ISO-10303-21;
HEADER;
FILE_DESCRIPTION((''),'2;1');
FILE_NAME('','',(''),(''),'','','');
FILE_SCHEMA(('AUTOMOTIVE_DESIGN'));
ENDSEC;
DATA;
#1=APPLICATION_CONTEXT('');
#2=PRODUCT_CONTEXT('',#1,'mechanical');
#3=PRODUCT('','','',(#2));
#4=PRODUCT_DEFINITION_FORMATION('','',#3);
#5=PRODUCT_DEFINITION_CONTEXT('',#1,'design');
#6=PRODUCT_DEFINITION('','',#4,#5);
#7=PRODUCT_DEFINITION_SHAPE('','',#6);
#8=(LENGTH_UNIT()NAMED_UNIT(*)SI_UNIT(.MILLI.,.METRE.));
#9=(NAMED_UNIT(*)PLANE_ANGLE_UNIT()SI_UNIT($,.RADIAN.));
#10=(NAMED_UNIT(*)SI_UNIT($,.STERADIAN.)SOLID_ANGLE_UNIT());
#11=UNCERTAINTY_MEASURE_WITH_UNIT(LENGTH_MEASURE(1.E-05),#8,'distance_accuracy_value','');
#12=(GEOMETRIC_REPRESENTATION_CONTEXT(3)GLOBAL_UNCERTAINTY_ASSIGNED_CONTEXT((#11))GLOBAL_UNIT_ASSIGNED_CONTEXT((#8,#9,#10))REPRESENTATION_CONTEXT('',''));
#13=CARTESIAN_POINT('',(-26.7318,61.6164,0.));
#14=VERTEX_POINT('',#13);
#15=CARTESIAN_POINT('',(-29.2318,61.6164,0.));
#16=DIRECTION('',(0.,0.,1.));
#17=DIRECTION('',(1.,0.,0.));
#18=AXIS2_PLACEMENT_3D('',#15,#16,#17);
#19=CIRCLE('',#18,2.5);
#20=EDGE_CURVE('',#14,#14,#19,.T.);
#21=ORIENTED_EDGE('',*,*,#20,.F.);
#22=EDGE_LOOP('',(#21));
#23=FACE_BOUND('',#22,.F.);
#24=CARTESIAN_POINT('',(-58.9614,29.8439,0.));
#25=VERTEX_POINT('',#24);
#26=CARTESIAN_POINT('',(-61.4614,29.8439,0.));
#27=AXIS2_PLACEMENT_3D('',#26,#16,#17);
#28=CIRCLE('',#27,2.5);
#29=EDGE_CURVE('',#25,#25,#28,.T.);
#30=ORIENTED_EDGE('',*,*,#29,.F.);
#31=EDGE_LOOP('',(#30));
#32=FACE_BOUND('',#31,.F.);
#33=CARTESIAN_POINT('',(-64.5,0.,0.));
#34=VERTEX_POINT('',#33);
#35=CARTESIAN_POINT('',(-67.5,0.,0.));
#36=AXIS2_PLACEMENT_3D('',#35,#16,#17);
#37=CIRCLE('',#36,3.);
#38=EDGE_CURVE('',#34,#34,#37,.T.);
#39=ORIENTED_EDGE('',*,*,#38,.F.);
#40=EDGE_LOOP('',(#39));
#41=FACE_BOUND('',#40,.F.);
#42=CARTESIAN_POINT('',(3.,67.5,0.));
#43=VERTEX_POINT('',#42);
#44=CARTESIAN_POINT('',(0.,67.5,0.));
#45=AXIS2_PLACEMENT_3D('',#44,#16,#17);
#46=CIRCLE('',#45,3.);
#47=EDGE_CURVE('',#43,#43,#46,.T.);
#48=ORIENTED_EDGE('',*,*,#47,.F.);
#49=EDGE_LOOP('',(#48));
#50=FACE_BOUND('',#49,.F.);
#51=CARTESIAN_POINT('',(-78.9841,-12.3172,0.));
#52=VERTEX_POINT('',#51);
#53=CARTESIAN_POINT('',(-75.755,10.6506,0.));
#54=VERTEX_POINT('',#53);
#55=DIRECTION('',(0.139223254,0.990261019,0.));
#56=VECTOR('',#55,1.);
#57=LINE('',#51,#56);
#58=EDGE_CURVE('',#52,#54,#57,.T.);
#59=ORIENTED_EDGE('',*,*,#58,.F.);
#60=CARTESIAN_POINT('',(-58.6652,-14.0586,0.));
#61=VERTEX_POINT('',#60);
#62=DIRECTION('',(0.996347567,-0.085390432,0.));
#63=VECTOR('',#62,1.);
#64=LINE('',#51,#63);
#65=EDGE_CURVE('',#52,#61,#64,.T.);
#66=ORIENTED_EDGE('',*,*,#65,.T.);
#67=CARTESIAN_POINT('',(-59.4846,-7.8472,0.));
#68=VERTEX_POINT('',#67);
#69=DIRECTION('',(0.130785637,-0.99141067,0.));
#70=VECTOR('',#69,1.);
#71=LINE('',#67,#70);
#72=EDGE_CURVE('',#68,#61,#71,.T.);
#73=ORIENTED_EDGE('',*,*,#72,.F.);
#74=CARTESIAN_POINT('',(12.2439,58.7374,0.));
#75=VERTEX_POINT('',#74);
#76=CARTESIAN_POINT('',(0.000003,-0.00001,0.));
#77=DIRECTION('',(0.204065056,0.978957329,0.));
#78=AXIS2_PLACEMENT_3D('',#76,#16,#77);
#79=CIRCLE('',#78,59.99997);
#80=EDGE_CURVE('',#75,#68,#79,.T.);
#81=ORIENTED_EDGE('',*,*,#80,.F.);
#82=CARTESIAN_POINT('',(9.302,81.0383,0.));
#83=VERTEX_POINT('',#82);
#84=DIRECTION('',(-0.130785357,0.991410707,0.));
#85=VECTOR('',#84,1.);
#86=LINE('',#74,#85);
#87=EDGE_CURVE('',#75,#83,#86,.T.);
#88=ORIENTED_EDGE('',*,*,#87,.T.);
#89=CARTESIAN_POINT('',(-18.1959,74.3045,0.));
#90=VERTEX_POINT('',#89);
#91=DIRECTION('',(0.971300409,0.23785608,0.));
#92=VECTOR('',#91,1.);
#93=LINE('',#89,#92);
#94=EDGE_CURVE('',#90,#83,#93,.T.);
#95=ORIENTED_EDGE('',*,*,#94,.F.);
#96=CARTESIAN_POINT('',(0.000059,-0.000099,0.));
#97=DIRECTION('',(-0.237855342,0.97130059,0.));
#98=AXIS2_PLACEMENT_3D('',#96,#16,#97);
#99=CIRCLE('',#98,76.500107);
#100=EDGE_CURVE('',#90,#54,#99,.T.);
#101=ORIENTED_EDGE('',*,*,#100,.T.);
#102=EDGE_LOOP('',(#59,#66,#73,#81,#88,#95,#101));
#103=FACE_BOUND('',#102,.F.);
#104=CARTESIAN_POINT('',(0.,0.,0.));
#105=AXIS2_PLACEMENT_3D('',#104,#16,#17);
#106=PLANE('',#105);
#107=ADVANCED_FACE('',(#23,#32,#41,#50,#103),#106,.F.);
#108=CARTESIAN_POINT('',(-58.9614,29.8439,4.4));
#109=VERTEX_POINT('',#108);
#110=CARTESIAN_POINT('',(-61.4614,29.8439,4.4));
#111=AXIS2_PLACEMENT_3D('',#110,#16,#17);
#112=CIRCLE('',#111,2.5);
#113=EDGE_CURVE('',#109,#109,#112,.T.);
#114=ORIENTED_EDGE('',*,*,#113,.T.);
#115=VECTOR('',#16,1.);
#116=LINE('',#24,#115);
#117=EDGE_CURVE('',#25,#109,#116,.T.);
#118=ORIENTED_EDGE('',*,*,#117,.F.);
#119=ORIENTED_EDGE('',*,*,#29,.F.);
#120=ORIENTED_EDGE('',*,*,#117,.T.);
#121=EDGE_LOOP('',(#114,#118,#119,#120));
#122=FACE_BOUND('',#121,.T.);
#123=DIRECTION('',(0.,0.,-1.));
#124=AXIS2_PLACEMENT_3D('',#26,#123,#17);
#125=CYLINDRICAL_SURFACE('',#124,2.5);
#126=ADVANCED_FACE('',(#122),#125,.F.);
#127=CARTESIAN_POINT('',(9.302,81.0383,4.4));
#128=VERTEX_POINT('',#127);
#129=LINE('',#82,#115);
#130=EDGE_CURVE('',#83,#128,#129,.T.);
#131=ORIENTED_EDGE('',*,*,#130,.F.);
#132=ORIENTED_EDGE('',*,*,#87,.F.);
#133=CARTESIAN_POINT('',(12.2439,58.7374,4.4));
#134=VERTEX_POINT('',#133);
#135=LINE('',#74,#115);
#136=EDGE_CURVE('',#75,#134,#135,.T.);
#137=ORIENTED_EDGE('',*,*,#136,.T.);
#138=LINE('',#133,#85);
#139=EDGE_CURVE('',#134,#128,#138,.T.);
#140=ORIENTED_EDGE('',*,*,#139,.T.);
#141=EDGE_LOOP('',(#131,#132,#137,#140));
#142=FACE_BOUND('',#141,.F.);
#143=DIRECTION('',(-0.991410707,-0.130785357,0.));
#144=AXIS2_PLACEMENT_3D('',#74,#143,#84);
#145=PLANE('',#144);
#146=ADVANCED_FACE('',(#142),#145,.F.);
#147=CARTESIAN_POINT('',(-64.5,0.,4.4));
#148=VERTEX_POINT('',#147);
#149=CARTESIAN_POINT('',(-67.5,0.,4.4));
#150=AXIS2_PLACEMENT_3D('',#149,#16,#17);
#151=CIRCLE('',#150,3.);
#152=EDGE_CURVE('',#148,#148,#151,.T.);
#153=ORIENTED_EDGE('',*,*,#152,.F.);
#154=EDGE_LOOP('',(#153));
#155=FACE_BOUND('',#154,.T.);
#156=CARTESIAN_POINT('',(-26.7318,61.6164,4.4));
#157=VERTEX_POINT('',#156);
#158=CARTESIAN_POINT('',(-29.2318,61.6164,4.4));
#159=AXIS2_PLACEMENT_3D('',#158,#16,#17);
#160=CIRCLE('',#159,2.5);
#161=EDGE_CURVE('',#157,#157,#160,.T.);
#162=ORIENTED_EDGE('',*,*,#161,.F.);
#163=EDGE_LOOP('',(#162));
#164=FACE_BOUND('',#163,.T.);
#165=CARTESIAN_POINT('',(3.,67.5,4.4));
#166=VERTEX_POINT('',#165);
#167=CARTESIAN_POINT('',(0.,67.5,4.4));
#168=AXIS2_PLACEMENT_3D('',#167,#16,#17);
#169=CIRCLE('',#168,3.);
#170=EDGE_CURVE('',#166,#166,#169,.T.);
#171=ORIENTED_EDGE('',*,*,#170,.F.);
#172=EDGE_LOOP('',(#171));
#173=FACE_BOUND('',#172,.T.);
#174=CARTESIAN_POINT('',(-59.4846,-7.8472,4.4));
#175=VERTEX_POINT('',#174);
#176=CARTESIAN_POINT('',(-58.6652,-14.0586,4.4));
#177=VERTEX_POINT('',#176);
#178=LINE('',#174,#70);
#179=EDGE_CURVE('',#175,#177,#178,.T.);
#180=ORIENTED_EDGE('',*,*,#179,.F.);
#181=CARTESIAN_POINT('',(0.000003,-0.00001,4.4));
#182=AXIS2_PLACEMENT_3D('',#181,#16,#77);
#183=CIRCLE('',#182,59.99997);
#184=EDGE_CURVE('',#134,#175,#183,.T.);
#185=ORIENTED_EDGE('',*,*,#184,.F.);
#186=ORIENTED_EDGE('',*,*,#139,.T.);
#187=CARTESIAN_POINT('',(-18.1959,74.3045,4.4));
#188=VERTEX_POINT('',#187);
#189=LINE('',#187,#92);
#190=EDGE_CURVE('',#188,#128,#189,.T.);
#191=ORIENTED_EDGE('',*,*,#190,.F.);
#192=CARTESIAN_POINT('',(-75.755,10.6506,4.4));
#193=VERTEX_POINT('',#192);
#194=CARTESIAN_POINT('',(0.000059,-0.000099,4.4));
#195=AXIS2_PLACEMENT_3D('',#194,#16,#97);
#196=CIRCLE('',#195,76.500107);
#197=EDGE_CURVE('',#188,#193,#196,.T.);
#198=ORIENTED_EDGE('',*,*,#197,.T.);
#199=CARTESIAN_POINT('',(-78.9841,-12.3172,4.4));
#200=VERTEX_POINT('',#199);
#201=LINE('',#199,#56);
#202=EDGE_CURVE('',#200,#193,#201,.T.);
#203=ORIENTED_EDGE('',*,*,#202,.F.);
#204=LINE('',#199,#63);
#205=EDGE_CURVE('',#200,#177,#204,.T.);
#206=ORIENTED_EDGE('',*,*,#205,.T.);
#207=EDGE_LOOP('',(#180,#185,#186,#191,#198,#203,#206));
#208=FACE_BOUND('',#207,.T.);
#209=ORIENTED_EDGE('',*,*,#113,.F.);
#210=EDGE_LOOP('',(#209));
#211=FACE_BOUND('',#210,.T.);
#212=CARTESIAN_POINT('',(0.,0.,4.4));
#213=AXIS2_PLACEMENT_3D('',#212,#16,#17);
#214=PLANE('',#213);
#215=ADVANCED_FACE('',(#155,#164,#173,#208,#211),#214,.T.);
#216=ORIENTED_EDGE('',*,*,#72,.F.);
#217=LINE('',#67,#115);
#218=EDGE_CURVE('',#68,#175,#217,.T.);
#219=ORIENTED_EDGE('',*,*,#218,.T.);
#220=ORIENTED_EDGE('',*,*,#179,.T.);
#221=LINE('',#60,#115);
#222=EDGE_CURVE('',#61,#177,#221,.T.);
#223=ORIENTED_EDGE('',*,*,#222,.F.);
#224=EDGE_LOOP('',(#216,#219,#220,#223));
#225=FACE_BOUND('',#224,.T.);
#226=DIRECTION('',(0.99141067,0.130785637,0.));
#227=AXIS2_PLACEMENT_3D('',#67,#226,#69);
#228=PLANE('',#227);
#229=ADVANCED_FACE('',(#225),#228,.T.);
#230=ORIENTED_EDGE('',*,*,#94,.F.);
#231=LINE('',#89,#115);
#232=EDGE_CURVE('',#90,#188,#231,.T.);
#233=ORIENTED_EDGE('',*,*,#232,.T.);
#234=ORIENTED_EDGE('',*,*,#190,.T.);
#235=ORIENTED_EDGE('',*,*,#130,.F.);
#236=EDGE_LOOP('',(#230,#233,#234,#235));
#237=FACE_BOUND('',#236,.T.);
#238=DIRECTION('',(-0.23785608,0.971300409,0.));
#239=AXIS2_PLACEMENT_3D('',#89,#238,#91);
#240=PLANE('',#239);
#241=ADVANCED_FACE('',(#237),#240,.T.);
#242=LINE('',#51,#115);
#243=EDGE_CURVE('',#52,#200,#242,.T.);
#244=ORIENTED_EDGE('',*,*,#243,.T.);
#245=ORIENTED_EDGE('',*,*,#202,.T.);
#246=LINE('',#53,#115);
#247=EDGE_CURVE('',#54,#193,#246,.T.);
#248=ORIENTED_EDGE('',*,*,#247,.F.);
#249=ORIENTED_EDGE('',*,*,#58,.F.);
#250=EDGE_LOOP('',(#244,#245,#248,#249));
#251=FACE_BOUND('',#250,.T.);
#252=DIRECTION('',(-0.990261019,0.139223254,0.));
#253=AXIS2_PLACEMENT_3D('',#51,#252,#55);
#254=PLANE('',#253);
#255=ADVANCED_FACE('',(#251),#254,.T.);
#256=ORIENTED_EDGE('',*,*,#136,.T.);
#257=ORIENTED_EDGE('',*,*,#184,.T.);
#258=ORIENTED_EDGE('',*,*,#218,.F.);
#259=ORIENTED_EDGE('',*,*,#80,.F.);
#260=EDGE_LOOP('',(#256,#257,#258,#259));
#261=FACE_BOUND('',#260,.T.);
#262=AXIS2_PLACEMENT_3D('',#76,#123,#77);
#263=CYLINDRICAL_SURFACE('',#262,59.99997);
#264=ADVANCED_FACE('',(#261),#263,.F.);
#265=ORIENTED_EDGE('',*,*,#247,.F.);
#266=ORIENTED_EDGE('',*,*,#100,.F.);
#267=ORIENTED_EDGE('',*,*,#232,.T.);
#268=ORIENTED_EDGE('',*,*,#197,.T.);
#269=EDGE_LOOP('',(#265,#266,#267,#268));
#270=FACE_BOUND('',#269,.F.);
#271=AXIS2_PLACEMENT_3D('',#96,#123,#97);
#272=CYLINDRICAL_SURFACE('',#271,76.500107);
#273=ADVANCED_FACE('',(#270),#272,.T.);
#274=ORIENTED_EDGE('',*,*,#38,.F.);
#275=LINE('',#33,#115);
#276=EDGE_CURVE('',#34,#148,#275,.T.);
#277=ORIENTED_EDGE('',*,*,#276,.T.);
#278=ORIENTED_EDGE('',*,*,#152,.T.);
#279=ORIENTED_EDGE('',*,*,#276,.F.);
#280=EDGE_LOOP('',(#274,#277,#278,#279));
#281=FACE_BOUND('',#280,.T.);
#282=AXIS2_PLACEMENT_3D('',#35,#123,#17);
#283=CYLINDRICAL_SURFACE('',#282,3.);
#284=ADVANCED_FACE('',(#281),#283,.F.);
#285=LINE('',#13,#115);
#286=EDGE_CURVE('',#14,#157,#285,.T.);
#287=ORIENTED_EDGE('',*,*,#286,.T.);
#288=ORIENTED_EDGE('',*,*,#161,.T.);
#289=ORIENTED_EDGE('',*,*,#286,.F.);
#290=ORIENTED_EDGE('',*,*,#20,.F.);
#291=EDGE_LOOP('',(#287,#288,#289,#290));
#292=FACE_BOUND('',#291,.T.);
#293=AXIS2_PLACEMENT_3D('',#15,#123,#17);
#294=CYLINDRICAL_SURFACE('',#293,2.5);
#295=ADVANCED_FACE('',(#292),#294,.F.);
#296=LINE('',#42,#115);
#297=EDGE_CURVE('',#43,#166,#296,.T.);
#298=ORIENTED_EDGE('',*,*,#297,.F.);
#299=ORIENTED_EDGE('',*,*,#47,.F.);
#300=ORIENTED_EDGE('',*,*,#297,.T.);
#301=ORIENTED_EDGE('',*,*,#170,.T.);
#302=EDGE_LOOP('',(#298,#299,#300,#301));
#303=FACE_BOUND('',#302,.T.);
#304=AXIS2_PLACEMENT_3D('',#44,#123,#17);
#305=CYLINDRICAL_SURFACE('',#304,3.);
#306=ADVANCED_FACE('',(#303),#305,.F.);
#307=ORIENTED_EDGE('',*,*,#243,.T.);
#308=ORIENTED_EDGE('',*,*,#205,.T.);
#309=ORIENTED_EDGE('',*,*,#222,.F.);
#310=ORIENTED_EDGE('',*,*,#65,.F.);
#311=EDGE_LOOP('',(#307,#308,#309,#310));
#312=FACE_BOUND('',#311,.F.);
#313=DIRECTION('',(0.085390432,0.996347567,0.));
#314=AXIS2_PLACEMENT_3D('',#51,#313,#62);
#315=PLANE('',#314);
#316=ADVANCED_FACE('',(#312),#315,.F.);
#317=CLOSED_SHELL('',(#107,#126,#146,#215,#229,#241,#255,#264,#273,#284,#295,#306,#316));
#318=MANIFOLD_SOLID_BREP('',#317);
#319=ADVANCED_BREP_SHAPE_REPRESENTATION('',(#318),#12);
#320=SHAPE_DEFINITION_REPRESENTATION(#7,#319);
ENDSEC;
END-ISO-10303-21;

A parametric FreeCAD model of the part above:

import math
import FreeCAD as App
import Part
import Sketcher
from FreeCAD import Vector
Q = App.Units.Quantity

doc = App.newDocument("Part")
body = doc.addObject("PartDesign::Body", "Body")

# Sketch on XY plane
sketch1 = body.newObject("Sketcher::SketchObject", "Sketch")
sketch1.AttachmentSupport = (doc.getObject("XY_Plane"), [""])
sketch1.MapMode = "FlatFace"
sketch1.addGeometry(Part.LineSegment(Vector(9.3, 81, 0), Vector(-18.2, 74.3, 0)), False)
sketch1.addGeometry(Part.ArcOfCircle(Part.Circle(Vector(0, 0, 0), Vector(0, 0, 1), 76.5), math.radians(104), math.radians(172)), False)
sketch1.addGeometry(Part.LineSegment(Vector(-75.8, 10.7, 0), Vector(-79, -12.3, 0)), False)
sketch1.addGeometry(Part.LineSegment(Vector(-79, -12.3, 0), Vector(-58.7, -14.1, 0)), False)
sketch1.addGeometry(Part.LineSegment(Vector(-58.7, -14.1, 0), Vector(-59.5, -7.8, 0)), False)
sketch1.addGeometry(Part.ArcOfCircle(Part.Circle(Vector(0, 0, 0), Vector(0, 0, 1), 60), math.radians(78), math.radians(188)), False)
sketch1.addGeometry(Part.LineSegment(Vector(12.2, 58.7, 0), Vector(9.3, 81, 0)), False)
sketch1.addGeometry(Part.Circle(Vector(-67.5, 0, 0), Vector(0, 0, 1), 3), False)
sketch1.addGeometry(Part.Circle(Vector(-61.5, 29.8, 0), Vector(0, 0, 1), 2.5), False)
sketch1.addGeometry(Part.Circle(Vector(-29.2, 61.6, 0), Vector(0, 0, 1), 2.5), False)
sketch1.addGeometry(Part.Circle(Vector(0, 67.5, 0), Vector(0, 0, 1), 3), False)
sketch1.addConstraint(Sketcher.Constraint("Tangent", 0, 2, 1, 1))
sketch1.addConstraint(Sketcher.Constraint("Tangent", 1, 2, 2, 1))
sketch1.addConstraint(Sketcher.Constraint("Coincident", 2, 2, 3, 1))
sketch1.addConstraint(Sketcher.Constraint("Coincident", 3, 2, 4, 1))
sketch1.addConstraint(Sketcher.Constraint("Tangent", 4, 2, 5, 2))
sketch1.addConstraint(Sketcher.Constraint("Coincident", 5, 1, 6, 1))
sketch1.addConstraint(Sketcher.Constraint("Coincident", 6, 2, 0, 1))
sketch1.addConstraint(Sketcher.Constraint("Coincident", 1, 3, -1, 1))
sketch1.addConstraint(Sketcher.Constraint("Coincident", 5, 3, -1, 1))
sketch1.addConstraint(Sketcher.Constraint("Equal", 8, 9))
sketch1.addConstraint(Sketcher.Constraint("Equal", 7, 10))
sketch1.addConstraint(Sketcher.Constraint("PointOnObject", 7, 3, -1))
sketch1.addConstraint(Sketcher.Constraint("PointOnObject", 10, 3, -2))
sketch1.addConstraint(Sketcher.Constraint("Parallel", 4, 6))
sketch1.addConstraint(Sketcher.Constraint("Diameter", 8, Q("5 mm")))
sketch1.addConstraint(Sketcher.Constraint("Diameter", 7, Q("6 mm")))
sketch1.addConstraint(Sketcher.Constraint("Radius", 5, Q("60 mm")))
sketch1.addConstraint(Sketcher.Constraint("Radius", 1, Q("76.5 mm")))
sketch1.addConstraint(Sketcher.Constraint("DistanceX", 7, 3, -1, 1, Q("67.5 mm")))
sketch1.addConstraint(Sketcher.Constraint("DistanceY", -1, 1, 10, 3, Q("67.5 mm")))
sketch1.addConstraint(Sketcher.Constraint("Angle", 0, Q("-166.24 deg")))
sketch1.addConstraint(Sketcher.Constraint("DistanceY", 2, 2, 4, 2, Q("4.47 mm")))
sketch1.addConstraint(Sketcher.Constraint("Distance", 6, Q("22.494 mm")))
sketch1.addConstraint(Sketcher.Constraint("DistanceY", -1, 1, 8, 3, Q("29.844 mm")))
sketch1.addConstraint(Sketcher.Constraint("DistanceX", 1, 2, -1, 1, Q("75.755 mm")))
sketch1.addConstraint(Sketcher.Constraint("DistanceX", 2, 2, -1, 1, Q("78.984 mm")))
sketch1.addConstraint(Sketcher.Constraint("DistanceX", 9, 3, 0, 2, Q("11.036 mm")))
sketch1.addConstraint(Sketcher.Constraint("DistanceY", 9, 3, 0, 2, Q("12.688 mm")))
sketch1.addConstraint(Sketcher.Constraint("DistanceX", 2, 2, 3, 2, Q("20.319 mm")))
sketch1.addConstraint(Sketcher.Constraint("DistanceX", 8, 3, -1, 1, Q("61.4614 mm")))
pad1 = body.newObject("PartDesign::Pad", "Pad")
pad1.Profile = sketch1
pad1.Length = 4.4

doc.recompute()
